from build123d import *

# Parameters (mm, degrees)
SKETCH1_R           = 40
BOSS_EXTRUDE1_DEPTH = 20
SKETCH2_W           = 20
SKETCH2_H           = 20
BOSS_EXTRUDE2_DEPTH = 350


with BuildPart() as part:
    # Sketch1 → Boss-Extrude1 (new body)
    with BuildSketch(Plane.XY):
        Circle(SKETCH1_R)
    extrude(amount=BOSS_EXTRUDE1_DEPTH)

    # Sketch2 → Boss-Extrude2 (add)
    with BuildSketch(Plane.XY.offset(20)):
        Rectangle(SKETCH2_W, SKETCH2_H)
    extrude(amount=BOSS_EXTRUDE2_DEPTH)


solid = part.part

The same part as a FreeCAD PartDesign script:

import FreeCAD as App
import Part
import Sketcher

V = App.Vector


def add_polygon(sketch, points):
    """Adds a closed chain of lines whose ends are joined by coincident constraints."""
    first, n = sketch.GeometryCount, len(points)
    for a, b in zip(points, points[1:] + points[:1]):
        sketch.addGeometry(Part.LineSegment(App.Vector(*a, 0), App.Vector(*b, 0)), False)
    for i in range(n):
        sketch.addConstraint(Sketcher.Constraint("Coincident", first + i, 2, first + (i + 1) % n, 1))

doc = App.newDocument("Part")
body = doc.addObject("PartDesign::Body", "Body")

# Sketch on XY plane
sketch1 = body.newObject("Sketcher::SketchObject", "Sketch")
sketch1.AttachmentSupport = (doc.getObject("XY_Plane"), [""])
sketch1.MapMode = "FlatFace"
sketch1.addGeometry(Part.Circle(V(0, 0, 0), V(0, 0, 1), 40), False)
sketch1.addConstraint([
    Sketcher.Constraint("Coincident", 0, 3, -1, 1),
    Sketcher.Constraint("Diameter", 0, 80.0),
])
pad1 = body.newObject("PartDesign::Pad", "Pad")
pad1.Profile = sketch1
pad1.Length = 20

# Sketch on XY plane
sketch2 = body.newObject("Sketcher::SketchObject", "Sketch001")
sketch2.AttachmentSupport = (doc.getObject("XY_Plane"), [""])
sketch2.MapMode = "FlatFace"
sketch2.AttachmentOffset = App.Placement(V(0, 0, 20), App.Rotation())
add_polygon(sketch2, [(-10, 10), (-10, -10), (10, -10), (10, 10)])  # lines 0-3
sketch2.addConstraint([
    Sketcher.Constraint("Vertical", 0),
    Sketcher.Constraint("Horizontal", 1),
    Sketcher.Constraint("Vertical", 2),
    Sketcher.Constraint("Horizontal", 3),
    Sketcher.Constraint("Symmetric", 0, 2, 2, 2, -1, 1),
    Sketcher.Constraint("Equal", 3, 0),
    Sketcher.Constraint("DistanceX", 1, 1, 1, 2, 20.0),
])
pad2 = body.newObject("PartDesign::Pad", "Pad001")
pad2.Profile = sketch2
pad2.Length = 350

doc.recompute()
